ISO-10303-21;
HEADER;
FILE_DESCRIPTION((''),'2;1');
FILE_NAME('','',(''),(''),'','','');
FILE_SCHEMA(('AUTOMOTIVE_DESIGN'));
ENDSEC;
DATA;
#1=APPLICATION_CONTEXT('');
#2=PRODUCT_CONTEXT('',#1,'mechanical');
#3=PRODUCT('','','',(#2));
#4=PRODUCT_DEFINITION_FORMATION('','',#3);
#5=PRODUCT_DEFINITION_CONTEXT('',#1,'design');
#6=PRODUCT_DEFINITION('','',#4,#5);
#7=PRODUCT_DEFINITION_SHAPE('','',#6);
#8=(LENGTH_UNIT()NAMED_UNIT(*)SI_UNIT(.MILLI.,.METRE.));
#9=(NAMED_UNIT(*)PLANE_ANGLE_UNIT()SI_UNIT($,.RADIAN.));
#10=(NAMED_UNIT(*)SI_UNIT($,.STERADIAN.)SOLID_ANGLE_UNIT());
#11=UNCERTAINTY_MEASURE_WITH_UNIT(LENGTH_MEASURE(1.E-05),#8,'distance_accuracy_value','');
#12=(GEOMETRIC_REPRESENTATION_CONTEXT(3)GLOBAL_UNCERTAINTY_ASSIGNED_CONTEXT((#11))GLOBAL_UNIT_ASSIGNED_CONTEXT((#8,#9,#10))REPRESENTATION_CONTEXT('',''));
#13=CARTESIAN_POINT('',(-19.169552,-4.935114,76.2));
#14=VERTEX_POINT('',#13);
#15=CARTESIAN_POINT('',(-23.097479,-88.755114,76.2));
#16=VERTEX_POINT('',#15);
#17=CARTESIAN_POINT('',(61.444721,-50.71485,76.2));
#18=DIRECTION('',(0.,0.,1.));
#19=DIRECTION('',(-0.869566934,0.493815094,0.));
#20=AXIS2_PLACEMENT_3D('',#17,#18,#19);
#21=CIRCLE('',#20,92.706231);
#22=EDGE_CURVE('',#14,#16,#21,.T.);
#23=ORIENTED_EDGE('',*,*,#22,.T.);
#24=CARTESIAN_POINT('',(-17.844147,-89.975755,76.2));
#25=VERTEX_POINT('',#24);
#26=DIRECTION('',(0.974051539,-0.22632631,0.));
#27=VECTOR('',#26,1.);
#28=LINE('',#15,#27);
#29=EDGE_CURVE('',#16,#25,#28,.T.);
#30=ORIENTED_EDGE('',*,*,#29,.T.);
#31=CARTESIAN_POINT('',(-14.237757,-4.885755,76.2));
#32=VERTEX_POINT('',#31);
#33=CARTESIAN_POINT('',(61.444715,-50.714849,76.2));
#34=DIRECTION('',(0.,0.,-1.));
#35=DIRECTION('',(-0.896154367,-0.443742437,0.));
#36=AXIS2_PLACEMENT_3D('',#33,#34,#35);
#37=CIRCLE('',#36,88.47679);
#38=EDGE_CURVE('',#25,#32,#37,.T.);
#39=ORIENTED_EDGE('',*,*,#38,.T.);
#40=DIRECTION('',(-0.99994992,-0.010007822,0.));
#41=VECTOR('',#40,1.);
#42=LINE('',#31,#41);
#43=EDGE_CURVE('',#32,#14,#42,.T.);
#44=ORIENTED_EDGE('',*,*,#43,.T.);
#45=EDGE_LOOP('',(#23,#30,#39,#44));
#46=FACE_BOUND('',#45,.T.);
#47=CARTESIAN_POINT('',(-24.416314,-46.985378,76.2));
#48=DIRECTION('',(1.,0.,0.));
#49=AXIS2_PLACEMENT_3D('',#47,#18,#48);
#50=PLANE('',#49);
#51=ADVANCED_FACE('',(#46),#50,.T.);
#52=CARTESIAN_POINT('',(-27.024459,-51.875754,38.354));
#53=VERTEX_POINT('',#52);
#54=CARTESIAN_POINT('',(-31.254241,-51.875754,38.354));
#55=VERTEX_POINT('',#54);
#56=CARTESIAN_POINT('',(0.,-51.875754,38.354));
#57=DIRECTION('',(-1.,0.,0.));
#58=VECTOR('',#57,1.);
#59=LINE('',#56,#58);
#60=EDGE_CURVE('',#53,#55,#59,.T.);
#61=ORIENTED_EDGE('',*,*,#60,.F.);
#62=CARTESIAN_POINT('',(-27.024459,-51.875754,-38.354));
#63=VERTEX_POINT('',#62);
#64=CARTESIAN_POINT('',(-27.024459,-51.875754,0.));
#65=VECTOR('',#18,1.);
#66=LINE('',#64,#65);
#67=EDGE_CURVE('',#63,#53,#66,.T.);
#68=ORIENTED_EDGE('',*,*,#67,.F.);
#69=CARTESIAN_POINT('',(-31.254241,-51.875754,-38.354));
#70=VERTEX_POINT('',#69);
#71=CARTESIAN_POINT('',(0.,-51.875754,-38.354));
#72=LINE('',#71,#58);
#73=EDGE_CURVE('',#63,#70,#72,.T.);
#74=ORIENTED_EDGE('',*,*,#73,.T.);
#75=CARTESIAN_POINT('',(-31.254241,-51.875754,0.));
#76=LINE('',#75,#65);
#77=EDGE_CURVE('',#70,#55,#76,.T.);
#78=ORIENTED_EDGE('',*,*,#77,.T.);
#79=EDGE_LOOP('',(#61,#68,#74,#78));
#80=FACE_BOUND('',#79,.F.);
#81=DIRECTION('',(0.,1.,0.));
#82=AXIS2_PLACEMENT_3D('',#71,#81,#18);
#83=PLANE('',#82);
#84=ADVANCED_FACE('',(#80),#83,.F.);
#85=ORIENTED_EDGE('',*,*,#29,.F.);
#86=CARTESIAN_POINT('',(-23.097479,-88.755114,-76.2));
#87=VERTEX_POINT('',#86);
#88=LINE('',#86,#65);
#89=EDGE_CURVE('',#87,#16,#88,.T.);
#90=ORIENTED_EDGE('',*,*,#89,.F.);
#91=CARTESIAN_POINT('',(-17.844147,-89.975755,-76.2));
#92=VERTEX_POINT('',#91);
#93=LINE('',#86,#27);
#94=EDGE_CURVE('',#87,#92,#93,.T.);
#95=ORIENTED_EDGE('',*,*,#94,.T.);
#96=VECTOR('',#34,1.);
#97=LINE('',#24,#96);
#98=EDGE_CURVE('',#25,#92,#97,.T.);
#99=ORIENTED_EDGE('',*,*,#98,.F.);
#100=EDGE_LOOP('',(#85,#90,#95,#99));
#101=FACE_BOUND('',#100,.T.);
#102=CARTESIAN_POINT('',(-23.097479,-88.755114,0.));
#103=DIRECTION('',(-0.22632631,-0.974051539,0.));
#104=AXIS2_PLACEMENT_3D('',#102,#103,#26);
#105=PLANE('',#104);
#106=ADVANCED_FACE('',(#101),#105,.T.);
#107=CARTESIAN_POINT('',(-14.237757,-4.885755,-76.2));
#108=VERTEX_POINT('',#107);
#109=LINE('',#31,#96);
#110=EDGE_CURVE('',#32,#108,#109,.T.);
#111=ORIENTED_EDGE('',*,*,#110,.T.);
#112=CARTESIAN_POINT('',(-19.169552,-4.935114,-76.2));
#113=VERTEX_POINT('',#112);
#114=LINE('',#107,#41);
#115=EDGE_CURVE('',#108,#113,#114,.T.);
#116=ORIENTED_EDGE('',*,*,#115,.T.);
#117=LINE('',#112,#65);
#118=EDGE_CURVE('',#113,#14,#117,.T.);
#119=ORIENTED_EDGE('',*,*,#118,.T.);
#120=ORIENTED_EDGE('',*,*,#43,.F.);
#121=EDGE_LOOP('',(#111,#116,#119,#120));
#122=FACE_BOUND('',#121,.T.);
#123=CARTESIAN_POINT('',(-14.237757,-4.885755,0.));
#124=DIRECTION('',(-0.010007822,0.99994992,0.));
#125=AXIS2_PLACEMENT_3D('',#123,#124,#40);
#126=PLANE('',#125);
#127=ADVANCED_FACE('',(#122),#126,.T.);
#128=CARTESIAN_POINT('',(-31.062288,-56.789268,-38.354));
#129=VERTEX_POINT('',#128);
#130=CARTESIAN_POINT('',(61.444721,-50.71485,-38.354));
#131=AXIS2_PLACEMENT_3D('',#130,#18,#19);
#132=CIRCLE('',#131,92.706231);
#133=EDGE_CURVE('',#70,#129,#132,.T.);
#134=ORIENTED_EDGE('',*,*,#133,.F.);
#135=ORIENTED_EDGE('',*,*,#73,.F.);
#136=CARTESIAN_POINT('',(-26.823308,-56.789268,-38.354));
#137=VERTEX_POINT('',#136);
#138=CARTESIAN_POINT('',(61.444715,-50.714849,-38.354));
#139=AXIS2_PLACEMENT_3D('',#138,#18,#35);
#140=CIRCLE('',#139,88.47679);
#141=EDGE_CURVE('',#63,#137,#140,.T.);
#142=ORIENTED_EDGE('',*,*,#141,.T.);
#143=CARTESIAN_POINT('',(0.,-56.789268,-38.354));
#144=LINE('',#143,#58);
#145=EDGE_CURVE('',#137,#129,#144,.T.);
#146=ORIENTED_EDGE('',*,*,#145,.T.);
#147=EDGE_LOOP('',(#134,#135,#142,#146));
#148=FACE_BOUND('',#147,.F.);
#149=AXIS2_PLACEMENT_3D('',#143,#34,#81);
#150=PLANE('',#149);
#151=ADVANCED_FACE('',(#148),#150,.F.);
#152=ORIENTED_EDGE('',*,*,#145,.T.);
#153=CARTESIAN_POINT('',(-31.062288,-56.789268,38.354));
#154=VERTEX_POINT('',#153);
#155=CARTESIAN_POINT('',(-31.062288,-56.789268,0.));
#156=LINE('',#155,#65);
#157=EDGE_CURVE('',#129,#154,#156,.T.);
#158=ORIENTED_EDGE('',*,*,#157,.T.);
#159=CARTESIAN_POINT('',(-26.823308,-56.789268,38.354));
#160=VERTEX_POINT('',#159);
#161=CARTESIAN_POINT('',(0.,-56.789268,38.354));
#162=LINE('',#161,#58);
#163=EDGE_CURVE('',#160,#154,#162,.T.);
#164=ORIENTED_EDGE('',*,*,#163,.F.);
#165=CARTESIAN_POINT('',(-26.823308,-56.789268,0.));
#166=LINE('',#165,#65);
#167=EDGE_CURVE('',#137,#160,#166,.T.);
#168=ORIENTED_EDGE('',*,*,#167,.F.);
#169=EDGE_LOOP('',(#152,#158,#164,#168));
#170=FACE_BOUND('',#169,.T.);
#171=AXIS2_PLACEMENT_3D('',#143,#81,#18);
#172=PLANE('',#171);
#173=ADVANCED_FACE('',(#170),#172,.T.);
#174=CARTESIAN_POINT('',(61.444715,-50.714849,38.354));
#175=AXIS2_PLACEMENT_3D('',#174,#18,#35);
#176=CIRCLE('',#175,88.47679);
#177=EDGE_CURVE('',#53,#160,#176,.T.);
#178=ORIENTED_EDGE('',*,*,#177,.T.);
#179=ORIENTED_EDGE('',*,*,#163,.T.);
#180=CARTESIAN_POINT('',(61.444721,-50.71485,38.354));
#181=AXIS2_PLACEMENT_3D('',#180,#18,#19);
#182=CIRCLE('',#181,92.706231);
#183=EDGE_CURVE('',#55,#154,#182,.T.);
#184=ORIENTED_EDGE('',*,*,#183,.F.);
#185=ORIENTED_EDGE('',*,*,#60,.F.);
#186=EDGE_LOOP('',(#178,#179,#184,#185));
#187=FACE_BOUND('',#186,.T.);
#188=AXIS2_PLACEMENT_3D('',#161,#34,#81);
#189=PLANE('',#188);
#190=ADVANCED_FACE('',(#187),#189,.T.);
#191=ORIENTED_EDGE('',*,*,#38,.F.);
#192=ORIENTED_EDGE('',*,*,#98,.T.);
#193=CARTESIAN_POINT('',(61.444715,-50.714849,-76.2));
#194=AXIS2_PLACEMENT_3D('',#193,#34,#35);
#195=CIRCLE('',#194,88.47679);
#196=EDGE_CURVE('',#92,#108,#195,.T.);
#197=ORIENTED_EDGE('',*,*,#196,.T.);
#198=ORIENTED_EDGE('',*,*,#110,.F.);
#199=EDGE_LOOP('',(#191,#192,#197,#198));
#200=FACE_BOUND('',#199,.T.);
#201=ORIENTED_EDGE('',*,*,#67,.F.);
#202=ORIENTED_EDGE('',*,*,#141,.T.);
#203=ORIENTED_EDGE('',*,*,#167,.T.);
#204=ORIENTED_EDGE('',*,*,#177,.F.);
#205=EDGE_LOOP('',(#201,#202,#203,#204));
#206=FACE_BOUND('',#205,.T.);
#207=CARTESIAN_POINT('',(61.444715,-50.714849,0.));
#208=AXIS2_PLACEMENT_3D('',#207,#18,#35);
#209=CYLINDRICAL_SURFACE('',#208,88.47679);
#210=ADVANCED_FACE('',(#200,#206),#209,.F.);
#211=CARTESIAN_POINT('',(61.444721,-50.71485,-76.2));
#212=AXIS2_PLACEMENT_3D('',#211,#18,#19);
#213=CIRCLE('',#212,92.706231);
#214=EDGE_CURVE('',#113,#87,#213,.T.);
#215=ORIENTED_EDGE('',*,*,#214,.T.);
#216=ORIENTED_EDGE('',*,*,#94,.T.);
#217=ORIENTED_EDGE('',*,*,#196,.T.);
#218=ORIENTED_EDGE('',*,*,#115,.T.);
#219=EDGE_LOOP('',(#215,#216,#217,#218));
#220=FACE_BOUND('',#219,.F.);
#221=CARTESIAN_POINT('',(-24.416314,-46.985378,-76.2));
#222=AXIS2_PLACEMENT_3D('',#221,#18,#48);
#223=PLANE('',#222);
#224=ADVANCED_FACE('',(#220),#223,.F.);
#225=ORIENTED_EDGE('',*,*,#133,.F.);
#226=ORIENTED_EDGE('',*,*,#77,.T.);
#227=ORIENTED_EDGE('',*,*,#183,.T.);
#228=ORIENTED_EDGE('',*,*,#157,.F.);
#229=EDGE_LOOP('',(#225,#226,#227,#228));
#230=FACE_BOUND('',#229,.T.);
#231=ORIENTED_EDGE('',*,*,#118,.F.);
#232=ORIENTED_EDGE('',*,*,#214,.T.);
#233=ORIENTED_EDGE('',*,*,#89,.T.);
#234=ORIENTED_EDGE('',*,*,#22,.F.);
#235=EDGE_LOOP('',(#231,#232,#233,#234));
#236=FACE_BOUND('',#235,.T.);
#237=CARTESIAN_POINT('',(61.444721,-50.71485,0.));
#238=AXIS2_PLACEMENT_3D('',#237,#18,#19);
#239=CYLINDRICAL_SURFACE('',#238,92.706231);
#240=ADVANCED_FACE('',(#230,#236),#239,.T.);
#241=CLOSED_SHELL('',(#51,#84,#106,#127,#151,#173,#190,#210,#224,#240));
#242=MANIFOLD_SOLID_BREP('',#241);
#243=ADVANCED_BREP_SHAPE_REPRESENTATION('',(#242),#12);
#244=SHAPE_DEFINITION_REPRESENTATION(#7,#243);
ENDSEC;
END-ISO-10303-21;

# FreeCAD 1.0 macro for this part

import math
import FreeCAD as App
import Part
import Sketcher

V = App.Vector
Q = App.Units.Quantity


def add_polygon(sketch, points):
    """Adds a closed chain of lines whose ends are joined by coincident constraints."""
    first, n = sketch.GeometryCount, len(points)
    for a, b in zip(points, points[1:] + points[:1]):
        sketch.addGeometry(Part.LineSegment(App.Vector(*a, 0), App.Vector(*b, 0)), False)
    for i in range(n):
        sketch.addConstraint(Sketcher.Constraint("Coincident", first + i, 2, first + (i + 1) % n, 1))

doc = App.newDocument("Part")
params = doc.addObject("Spreadsheet::Sheet", "Params")
for row, (alias, value) in enumerate([
    ("pad1_length", "6 in"),
    ("sketch2_height", "3.02 in"),
    ("pocket1_length", "2 in"),
], start=1):
    params.set(f"A{row}", alias)
    params.set(f"B{row}", "=" + value)
    params.setAlias(f"B{row}", alias)

body = doc.addObject("PartDesign::Body", "Body")

sketch1 = body.newObject("Sketcher::SketchObject", "Sketch")
sketch1.AttachmentSupport = (doc.getObject("XY_Plane"), [""])
sketch1.MapMode = "FlatFace"
sketch1.addGeometry([
    Part.LineSegment(V(-14.2, -4.9, 0), V(-19.2, -4.9, 0)),
    Part.ArcOfCircle(Part.Circle(V(61.4, -50.7, 0), V(0, 0, 1), 92.7), math.radians(150), math.radians(204)),
    Part.LineSegment(V(-23.1, -88.8, 0), V(-17.8, -90, 0)),
    Part.ArcOfCircle(Part.Circle(V(61.4, -50.7, 0), V(0, 0, 1), 88.5), math.radians(149), math.radians(206)),
], False)
sketch1.addConstraint([
    Sketcher.Constraint("Coincident", 0, 2, 1, 1),
    Sketcher.Constraint("Coincident", 1, 2, 2, 1),
    Sketcher.Constraint("Coincident", 2, 2, 3, 2),
    Sketcher.Constraint("Coincident", 3, 1, 0, 1),
    Sketcher.Constraint("Coincident", 3, 3, 1, 3),
    Sketcher.Constraint("DistanceY", 1, 2, 0, 2, Q("3.3 in")),
    Sketcher.Constraint("DistanceY", 2, 2, 3, 1, Q("3.35 in")),
    Sketcher.Constraint("Radius", 1, 92.706231),
    Sketcher.Constraint("Radius", 3, 88.47679),
    Sketcher.Constraint("DistanceX", 1, 2, 1, 3, 84.5422),
    Sketcher.Constraint("Distance", 0, 4.932042),
    Sketcher.Constraint("DistanceX", -1, 1, 1, 3, 61.444721),
    Sketcher.Constraint("DistanceY", 1, 3, -1, 1, 50.71485),
])
pad1 = body.newObject("PartDesign::Pad", "Pad")
pad1.Profile = sketch1
pad1.setExpression("Length", "Params.pad1_length")
pad1.Midplane = True

sketch2 = body.newObject("Sketcher::SketchObject", "Sketch001")
sketch2.AttachmentSupport = (doc.getObject("YZ_Plane"), [""])
sketch2.MapMode = "FlatFace"
add_polygon(sketch2, [(-56.8, 38.4), (-56.8, -38.4), (-51.9, -38.4), (-51.9, 38.4)])
sketch2.addConstraint([
    Sketcher.Constraint("Vertical", 0),
    Sketcher.Constraint("Horizontal", 1),
    Sketcher.Constraint("Vertical", 2),
    Sketcher.Constraint("Horizontal", 3),
    Sketcher.Constraint("DistanceY", 0, 2, 0, 1, Q("3.02 in")),
    Sketcher.Constraint("DistanceY", 0, 2, -1, 1, Q("1.51 in")),
    Sketcher.Constraint("DistanceX", 1, 1, 1, 2, 4.913513),
    Sketcher.Constraint("DistanceX", 0, 2, -1, 1, 56.789268),
])
sketch2.setExpression("Constraints[8]", "Params.sketch2_height")
pocket1 = body.newObject("PartDesign::Pocket", "Pocket")
pocket1.Profile = sketch2
pocket1.setExpression("Length", "Params.pocket1_length")

doc.recompute()
